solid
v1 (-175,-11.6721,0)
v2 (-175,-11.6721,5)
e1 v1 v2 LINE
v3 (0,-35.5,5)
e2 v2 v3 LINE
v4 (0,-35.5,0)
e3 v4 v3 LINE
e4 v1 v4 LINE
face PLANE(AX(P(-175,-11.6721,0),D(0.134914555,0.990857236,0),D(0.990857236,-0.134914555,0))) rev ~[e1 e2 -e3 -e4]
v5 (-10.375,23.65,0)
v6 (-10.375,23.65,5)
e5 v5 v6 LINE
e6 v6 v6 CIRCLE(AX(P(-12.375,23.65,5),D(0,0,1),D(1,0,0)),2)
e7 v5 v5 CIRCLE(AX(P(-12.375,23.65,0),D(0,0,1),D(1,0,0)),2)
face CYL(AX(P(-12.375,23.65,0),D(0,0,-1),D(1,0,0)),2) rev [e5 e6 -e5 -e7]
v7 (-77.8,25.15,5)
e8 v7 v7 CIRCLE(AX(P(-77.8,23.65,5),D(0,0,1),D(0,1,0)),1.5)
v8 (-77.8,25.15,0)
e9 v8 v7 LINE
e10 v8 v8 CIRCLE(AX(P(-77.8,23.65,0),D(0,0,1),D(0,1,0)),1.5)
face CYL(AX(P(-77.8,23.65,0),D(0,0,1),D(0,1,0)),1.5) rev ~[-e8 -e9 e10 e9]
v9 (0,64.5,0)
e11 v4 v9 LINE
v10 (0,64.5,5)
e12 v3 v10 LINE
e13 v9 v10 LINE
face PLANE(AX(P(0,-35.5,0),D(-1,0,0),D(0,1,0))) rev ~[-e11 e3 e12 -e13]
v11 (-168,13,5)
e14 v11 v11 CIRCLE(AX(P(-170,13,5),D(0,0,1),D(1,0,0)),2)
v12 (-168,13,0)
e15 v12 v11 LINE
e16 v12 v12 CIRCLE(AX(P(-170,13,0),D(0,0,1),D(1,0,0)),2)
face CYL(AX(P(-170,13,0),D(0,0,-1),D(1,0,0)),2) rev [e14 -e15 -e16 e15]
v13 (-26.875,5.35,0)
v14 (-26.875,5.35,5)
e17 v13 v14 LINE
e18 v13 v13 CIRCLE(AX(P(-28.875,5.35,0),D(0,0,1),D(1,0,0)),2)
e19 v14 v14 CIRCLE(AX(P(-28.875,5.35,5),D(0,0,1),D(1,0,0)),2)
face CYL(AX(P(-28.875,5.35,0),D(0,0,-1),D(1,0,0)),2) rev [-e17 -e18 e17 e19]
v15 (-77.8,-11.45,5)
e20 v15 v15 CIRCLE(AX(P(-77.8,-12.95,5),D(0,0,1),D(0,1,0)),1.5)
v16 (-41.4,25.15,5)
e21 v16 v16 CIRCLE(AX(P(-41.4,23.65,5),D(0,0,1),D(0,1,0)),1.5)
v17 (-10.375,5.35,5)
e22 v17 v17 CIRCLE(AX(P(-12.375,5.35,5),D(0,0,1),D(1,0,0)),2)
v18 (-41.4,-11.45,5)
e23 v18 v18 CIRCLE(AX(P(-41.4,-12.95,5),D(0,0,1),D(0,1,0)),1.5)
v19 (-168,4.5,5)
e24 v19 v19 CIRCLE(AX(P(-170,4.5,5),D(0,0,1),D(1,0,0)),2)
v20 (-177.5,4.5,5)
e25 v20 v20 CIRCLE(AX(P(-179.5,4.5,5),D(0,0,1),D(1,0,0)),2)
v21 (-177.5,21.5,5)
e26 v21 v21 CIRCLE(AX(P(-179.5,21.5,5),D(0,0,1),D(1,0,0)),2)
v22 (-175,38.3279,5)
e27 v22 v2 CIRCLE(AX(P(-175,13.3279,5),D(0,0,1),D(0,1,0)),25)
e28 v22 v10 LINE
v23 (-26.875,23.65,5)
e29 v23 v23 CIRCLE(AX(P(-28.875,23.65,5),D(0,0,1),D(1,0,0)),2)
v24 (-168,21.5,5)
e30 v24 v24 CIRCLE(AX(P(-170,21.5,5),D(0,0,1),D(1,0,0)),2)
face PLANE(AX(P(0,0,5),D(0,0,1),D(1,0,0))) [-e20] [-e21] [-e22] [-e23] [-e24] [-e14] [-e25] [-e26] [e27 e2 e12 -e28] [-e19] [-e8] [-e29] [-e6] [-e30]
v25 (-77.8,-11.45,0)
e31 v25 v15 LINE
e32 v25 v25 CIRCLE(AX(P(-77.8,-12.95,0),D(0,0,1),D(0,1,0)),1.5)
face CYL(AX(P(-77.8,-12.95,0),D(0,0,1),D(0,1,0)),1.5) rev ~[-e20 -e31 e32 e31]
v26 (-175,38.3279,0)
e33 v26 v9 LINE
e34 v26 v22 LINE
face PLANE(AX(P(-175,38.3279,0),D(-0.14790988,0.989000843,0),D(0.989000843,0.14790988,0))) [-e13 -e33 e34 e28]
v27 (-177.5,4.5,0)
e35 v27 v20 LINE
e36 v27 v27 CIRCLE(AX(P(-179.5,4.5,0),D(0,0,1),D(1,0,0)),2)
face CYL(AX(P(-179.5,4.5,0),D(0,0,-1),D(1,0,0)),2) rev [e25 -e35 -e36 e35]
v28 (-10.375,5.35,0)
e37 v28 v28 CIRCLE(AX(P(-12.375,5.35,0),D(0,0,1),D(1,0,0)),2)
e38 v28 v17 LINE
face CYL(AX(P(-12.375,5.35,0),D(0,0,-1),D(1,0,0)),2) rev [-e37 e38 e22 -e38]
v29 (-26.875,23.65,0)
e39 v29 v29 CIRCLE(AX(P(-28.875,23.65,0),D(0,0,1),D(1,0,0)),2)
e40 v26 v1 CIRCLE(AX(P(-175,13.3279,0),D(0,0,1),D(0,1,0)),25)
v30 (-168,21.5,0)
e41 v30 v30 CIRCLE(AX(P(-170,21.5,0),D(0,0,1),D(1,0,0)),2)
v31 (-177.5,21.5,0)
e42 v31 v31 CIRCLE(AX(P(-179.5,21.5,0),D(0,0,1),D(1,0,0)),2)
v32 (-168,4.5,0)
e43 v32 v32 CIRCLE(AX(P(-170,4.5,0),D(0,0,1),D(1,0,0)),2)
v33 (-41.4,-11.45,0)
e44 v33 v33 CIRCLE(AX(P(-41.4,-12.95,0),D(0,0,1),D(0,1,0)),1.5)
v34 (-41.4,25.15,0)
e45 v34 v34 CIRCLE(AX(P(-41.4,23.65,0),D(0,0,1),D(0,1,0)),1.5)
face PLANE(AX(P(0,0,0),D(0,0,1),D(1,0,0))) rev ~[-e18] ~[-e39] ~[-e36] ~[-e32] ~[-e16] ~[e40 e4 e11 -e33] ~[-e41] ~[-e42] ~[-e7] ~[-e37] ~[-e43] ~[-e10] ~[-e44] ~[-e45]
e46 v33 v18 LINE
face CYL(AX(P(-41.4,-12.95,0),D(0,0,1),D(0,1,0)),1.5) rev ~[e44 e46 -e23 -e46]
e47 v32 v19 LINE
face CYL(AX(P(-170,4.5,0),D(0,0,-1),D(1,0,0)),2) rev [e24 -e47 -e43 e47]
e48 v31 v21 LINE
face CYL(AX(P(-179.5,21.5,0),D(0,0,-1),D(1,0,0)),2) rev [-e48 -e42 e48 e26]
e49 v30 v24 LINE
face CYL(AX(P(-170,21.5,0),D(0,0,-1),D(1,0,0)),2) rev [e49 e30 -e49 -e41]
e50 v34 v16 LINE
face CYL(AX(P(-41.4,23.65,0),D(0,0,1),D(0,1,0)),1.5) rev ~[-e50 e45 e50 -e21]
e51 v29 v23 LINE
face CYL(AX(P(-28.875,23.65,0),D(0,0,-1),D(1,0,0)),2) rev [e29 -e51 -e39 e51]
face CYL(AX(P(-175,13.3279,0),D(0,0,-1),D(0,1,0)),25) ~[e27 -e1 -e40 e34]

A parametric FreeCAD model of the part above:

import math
import FreeCAD as App
import Part
import Sketcher
from FreeCAD import Vector
Q = App.Units.Quantity

doc = App.newDocument("Part")
body = doc.addObject("PartDesign::Body", "Body")

# Sketch on XY plane
sketch1 = body.newObject("Sketcher::SketchObject", "Sketch")
sketch1.AttachmentSupport = (doc.getObject("XY_Plane"), [""])
sketch1.MapMode = "FlatFace"
sketch1.addGeometry([
    Part.LineSegment(Vector(-175, -11.7, 0), Vector(0, -35.5, 0)),  # 0
    Part.LineSegment(Vector(0, -35.5, 0), Vector(0, 64.5, 0)),  # 1
    Part.LineSegment(Vector(0, 64.5, 0), Vector(-175, 38.3, 0)),  # 2
    Part.ArcOfCircle(Part.Circle(Vector(-175, 13.3, 0), Vector(0, 0, 1), 25), math.radians(90), math.radians(270)),  # 3
    Part.Circle(Vector(-179.5, 4.5, 0), Vector(0, 0, 1), 2),  # 4
    Part.Circle(Vector(-170, 4.5, 0), Vector(0, 0, 1), 2),  # 5
    Part.Circle(Vector(-170, 13, 0), Vector(0, 0, 1), 2),  # 6
    Part.Circle(Vector(-28.9, 5.3, 0), Vector(0, 0, 1), 2),  # 7
    Part.Circle(Vector(-12.4, 5.3, 0), Vector(0, 0, 1), 2),  # 8
    Part.Circle(Vector(-179.5, 21.5, 0), Vector(0, 0, 1), 2),  # 9
    Part.Circle(Vector(-170, 21.5, 0), Vector(0, 0, 1), 2),  # 10
    Part.Circle(Vector(-28.9, 23.6, 0), Vector(0, 0, 1), 2),  # 11
    Part.Circle(Vector(-12.4, 23.6, 0), Vector(0, 0, 1), 2),  # 12
], False)
sketch1.addConstraint([
    Sketcher.Constraint("Coincident", 0, 2, 1, 1),
    Sketcher.Constraint("Coincident", 1, 2, 2, 1),
    Sketcher.Constraint("Coincident", 2, 2, 3, 1),
    Sketcher.Constraint("Coincident", 3, 2, 0, 1),
    Sketcher.Constraint("Vertical", 1),
    Sketcher.Constraint("Equal", 4, 5),
    Sketcher.Constraint("Equal", 5, 6),
    Sketcher.Constraint("Equal", 6, 7),
    Sketcher.Constraint("Equal", 7, 8),
    Sketcher.Constraint("Equal", 8, 9),
    Sketcher.Constraint("Equal", 9, 10),
    Sketcher.Constraint("Equal", 10, 11),
    Sketcher.Constraint("Equal", 11, 12),
    Sketcher.Constraint("PointOnObject", 0, 2, -2),
    Sketcher.Constraint("Horizontal", 4, 3, 5, 3),
    Sketcher.Constraint("Horizontal", 7, 3, 8, 3),
    Sketcher.Constraint("Horizontal", 9, 3, 10, 3),
    Sketcher.Constraint("Horizontal", 11, 3, 12, 3),
    Sketcher.Constraint("Vertical", 5, 3, 6, 3),
    Sketcher.Constraint("Vertical", 4, 3, 9, 3),
    Sketcher.Constraint("Vertical", 6, 3, 10, 3),
    Sketcher.Constraint("Vertical", 7, 3, 11, 3),
    Sketcher.Constraint("Vertical", 8, 3, 12, 3),
    Sketcher.Constraint("Vertical", 3, 3, 2, 2),
    Sketcher.Constraint("Vertical", 2, 2, 3, 2),
    Sketcher.Constraint("Radius", 3, Q("25 mm")),
    Sketcher.Constraint("DistanceY", 1, 1, 1, 2, Q("100 mm")),
    Sketcher.Constraint("Diameter", 4, Q("4 mm")),
    Sketcher.Constraint("DistanceX", 3, 3, -1, 1, Q("175 mm")),
    Sketcher.Constraint("DistanceX", 5, 3, -1, 1, Q("170 mm")),
    Sketcher.Constraint("DistanceY", -1, 1, 6, 3, Q("13 mm")),
    Sketcher.Constraint("DistanceY", 4, 3, 9, 3, Q("17 mm")),
    Sketcher.Constraint("DistanceY", 0, 2, 5, 3, Q("40 mm")),
    Sketcher.Constraint("DistanceX", 4, 3, -1, 1, Q("179.5 mm")),
    Sketcher.Constraint("DistanceY", -1, 1, 4, 3, Q("4.5 mm")),
    Sketcher.Constraint("DistanceX", 7, 3, 8, 3, Q("16.5 mm")),
    Sketcher.Constraint("DistanceY", 7, 3, 11, 3, Q("18.3 mm")),
    Sketcher.Constraint("DistanceY", -1, 1, 7, 3, Q("5.35 mm")),
    Sketcher.Constraint("DistanceY", -1, 1, 3, 3, Q("13.328 mm")),
    Sketcher.Constraint("DistanceX", 7, 3, -1, 1, Q("28.875 mm")),
])
pad1 = body.newObject("PartDesign::Pad", "Pad")
pad1.Profile = sketch1
pad1.Length = 5

# Sketch on XY plane
sketch2 = body.newObject("Sketcher::SketchObject", "Sketch001")
sketch2.AttachmentSupport = (doc.getObject("XY_Plane"), [""])
sketch2.MapMode = "FlatFace"
sketch2.addGeometry([
    Part.Circle(Vector(-41.4, -12.9, 0), Vector(0, 0, 1), 1.5),
    Part.Circle(Vector(-41.4, 23.6, 0), Vector(0, 0, 1), 1.5),
    Part.Circle(Vector(-77.8, 23.6, 0), Vector(0, 0, 1), 1.5),
    Part.Circle(Vector(-77.8, -12.9, 0), Vector(0, 0, 1), 1.5),
], False)
sketch2.addConstraint([
    Sketcher.Constraint("Equal", 0, 1),
    Sketcher.Constraint("Equal", 1, 2),
    Sketcher.Constraint("Equal", 2, 3),
    Sketcher.Constraint("Horizontal", 1, 3, 2, 3),
    Sketcher.Constraint("Horizontal", 0, 3, 3, 3),
    Sketcher.Constraint("Vertical", 0, 3, 1, 3),
    Sketcher.Constraint("Vertical", 2, 3, 3, 3),
    Sketcher.Constraint("Diameter", 0, Q("3 mm")),
    Sketcher.Constraint("DistanceX", 0, 3, -1, 1, Q("41.4 mm")),
    Sketcher.Constraint("DistanceX", 2, 3, -1, 1, Q("77.8 mm")),
    Sketcher.Constraint("DistanceY", 0, 3, 1, 3, Q("36.6 mm")),
    Sketcher.Constraint("DistanceY", 0, 3, -1, 1, Q("12.95 mm")),
])
doc.recompute()
hole = body.newObject("PartDesign::Hole", "Hole")
hole.Profile = sketch2
hole.ThreadType = "None"
hole.Diameter = 3
hole.DepthType = "ThroughAll"
hole.Reversed = True

doc.recompute()
